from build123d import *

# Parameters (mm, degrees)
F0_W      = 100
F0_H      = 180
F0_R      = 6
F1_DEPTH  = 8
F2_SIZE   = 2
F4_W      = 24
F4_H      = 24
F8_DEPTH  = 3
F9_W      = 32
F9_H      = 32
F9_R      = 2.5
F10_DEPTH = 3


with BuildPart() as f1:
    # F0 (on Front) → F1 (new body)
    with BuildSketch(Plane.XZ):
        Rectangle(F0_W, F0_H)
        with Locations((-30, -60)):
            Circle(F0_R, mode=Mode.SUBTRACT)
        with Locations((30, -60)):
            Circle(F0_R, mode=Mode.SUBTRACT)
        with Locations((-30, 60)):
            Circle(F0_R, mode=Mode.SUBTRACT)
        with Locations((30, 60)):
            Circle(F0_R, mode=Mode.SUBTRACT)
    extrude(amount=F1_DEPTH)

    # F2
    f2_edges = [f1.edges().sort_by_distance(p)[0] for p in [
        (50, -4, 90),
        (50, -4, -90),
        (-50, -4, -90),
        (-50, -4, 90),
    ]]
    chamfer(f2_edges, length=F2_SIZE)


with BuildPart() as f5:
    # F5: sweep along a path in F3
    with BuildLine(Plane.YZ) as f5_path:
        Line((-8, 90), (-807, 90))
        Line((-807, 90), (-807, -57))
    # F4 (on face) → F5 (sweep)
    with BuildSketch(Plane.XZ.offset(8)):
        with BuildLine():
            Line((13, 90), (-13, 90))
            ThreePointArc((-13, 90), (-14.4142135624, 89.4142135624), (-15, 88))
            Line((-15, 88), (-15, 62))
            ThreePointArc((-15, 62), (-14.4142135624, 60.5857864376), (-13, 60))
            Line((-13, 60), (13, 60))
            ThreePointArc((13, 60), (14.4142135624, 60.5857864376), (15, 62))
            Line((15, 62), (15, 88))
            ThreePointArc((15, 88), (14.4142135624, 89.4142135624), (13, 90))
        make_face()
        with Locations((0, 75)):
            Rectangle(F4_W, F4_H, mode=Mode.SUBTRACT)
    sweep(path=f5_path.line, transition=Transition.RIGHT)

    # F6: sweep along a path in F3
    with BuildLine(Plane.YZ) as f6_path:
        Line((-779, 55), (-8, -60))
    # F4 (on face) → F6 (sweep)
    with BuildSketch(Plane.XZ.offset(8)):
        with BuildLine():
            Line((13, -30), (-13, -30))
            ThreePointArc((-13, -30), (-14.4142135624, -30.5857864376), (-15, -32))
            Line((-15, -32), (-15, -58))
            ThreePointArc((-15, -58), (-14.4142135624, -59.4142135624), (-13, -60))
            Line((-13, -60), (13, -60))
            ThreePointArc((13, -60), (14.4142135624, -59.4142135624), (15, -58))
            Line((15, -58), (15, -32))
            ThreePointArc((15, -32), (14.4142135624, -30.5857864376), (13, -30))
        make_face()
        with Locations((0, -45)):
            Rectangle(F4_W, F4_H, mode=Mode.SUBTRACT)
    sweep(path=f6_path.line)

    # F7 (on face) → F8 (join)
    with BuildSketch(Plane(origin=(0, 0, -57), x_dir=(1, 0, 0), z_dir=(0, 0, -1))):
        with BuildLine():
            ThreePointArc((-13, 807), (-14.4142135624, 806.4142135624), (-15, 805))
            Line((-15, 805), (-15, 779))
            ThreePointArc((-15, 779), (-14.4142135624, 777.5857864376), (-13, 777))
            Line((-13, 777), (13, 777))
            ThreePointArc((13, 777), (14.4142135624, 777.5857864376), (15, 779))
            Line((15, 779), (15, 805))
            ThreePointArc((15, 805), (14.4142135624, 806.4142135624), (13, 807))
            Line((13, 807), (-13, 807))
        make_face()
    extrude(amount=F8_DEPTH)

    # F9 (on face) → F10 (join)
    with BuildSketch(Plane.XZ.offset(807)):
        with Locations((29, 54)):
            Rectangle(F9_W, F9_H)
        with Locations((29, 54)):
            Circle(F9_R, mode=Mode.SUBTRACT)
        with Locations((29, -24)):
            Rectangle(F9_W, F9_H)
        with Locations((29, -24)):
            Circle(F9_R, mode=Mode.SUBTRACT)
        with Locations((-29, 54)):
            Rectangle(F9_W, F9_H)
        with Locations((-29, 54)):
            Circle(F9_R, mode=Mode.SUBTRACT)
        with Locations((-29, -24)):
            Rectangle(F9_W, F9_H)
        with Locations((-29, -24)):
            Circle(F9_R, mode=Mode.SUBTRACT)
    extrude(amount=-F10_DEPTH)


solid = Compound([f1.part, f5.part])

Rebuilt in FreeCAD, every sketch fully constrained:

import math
import FreeCAD as App
import Part
import Sketcher
from FreeCAD import Vector
Q = App.Units.Quantity


def edges_at(feature, points):
    """Names of the edges that pass closest to the given points."""
    edges = feature.Shape.Edges
    near = lambda p: min(range(len(edges)), key=lambda i: edges[i].distToShape(Part.Vertex(*p))[0])
    return sorted({f"Edge{near(p) + 1}" for p in points})


def add_polygon(sketch, points):
    """Adds a closed chain of lines whose ends are joined by coincident constraints."""
    first, n = sketch.GeometryCount, len(points)
    for a, b in zip(points, points[1:] + points[:1]):
        sketch.addGeometry(Part.LineSegment(App.Vector(*a, 0), App.Vector(*b, 0)), False)
    for i in range(n):
        sketch.addConstraint(Sketcher.Constraint("Coincident", first + i, 2, first + (i + 1) % n, 1))

doc = App.newDocument("Part")
body = doc.addObject("PartDesign::Body", "Body")

# Sketch on XZ plane
sketch1 = body.newObject("Sketcher::SketchObject", "Sketch")
sketch1.AttachmentSupport = (doc.getObject("XZ_Plane"), [""])
sketch1.MapMode = "FlatFace"
add_polygon(sketch1, [(-50, 90), (-50, -90), (50, -90), (50, 90)])  # lines 0-3
sketch1.addGeometry(Part.Circle(Vector(-30, -60, 0), Vector(0, 0, 1), 6), False)  # 4
sketch1.addGeometry(Part.Circle(Vector(30, -60, 0), Vector(0, 0, 1), 6), False)  # 5
sketch1.addGeometry(Part.Circle(Vector(-30, 60, 0), Vector(0, 0, 1), 6), False)  # 6
sketch1.addGeometry(Part.Circle(Vector(30, 60, 0), Vector(0, 0, 1), 6), False)  # 7
sketch1.addConstraint(Sketcher.Constraint("Vertical", 0))
sketch1.addConstraint(Sketcher.Constraint("Horizontal", 1))
sketch1.addConstraint(Sketcher.Constraint("Vertical", 2))
sketch1.addConstraint(Sketcher.Constraint("Horizontal", 3))
sketch1.addConstraint(Sketcher.Constraint("Equal", 4, 5))
sketch1.addConstraint(Sketcher.Constraint("Equal", 5, 6))
sketch1.addConstraint(Sketcher.Constraint("Equal", 6, 7))
sketch1.addConstraint(Sketcher.Constraint("Symmetric", 5, 3, 6, 3, -1, 1))
sketch1.addConstraint(Sketcher.Constraint("Symmetric", 4, 3, 7, 3, -1, 1))
sketch1.addConstraint(Sketcher.Constraint("Symmetric", 0, 2, 2, 2, -1, 1))
sketch1.addConstraint(Sketcher.Constraint("Symmetric", 4, 3, 5, 3, -2))
sketch1.addConstraint(Sketcher.Constraint("Diameter", 4, Q("12 mm")))
sketch1.addConstraint(Sketcher.Constraint("DistanceX", 1, 1, 1, 2, Q("100 mm")))
sketch1.addConstraint(Sketcher.Constraint("DistanceY", 0, 2, 0, 1, Q("180 mm")))
sketch1.addConstraint(Sketcher.Constraint("DistanceX", 4, 3, -1, 1, Q("30 mm")))
sketch1.addConstraint(Sketcher.Constraint("DistanceY", 4, 3, -1, 1, Q("60 mm")))
pad1 = body.newObject("PartDesign::Pad", "Pad")
pad1.Profile = sketch1
pad1.Length = 8
doc.recompute()

chamfer = body.newObject("PartDesign::Chamfer", "Chamfer")
chamfer.Base = (pad1, edges_at(pad1, [
    (50, -4, 90),
    (50, -4, -90),
    (-50, -4, -90),
    (-50, -4, 90),
]))
chamfer.Size = 2
body2 = doc.addObject("PartDesign::Body", "Body001")

# Sketch on XZ plane
sketch2 = body2.newObject("Sketcher::SketchObject", "Sketch001")
sketch2.AttachmentSupport = (doc.getObject("XZ_Plane001"), [""])
sketch2.MapMode = "FlatFace"
sketch2.AttachmentOffset = App.Placement(Vector(0, 0, 8), App.Rotation())
sketch2.addGeometry(Part.LineSegment(Vector(13, 90, 0), Vector(-13, 90, 0)), False)  # 0
sketch2.addGeometry(Part.ArcOfCircle(Part.Circle(Vector(-13, 88, 0), Vector(0, 0, 1), 2), math.radians(90), math.radians(180)), False)  # 1
sketch2.addGeometry(Part.LineSegment(Vector(-15, 88, 0), Vector(-15, 62, 0)), False)  # 2
sketch2.addGeometry(Part.ArcOfCircle(Part.Circle(Vector(-13, 62, 0), Vector(0, 0, 1), 2), math.radians(180), math.radians(270)), False)  # 3
sketch2.addGeometry(Part.LineSegment(Vector(-13, 60, 0), Vector(13, 60, 0)), False)  # 4
sketch2.addGeometry(Part.ArcOfCircle(Part.Circle(Vector(13, 62, 0), Vector(0, 0, 1), 2), math.radians(-90), math.radians(0)), False)  # 5
sketch2.addGeometry(Part.LineSegment(Vector(15, 62, 0), Vector(15, 88, 0)), False)  # 6
sketch2.addGeometry(Part.ArcOfCircle(Part.Circle(Vector(13, 88, 0), Vector(0, 0, 1), 2), math.radians(0), math.radians(90)), False)  # 7
add_polygon(sketch2, [(12, 63), (-12, 63), (-12, 87), (12, 87)])  # lines 8-11
sketch2.addConstraint(Sketcher.Constraint("Tangent", 0, 2, 1, 1))
sketch2.addConstraint(Sketcher.Constraint("Tangent", 1, 2, 2, 1))
sketch2.addConstraint(Sketcher.Constraint("Tangent", 2, 2, 3, 1))
sketch2.addConstraint(Sketcher.Constraint("Tangent", 3, 2, 4, 1))
sketch2.addConstraint(Sketcher.Constraint("Tangent", 4, 2, 5, 1))
sketch2.addConstraint(Sketcher.Constraint("Tangent", 5, 2, 6, 1))
sketch2.addConstraint(Sketcher.Constraint("Tangent", 6, 2, 7, 1))
sketch2.addConstraint(Sketcher.Constraint("Tangent", 7, 2, 0, 1))
sketch2.addConstraint(Sketcher.Constraint("Horizontal", 0))
sketch2.addConstraint(Sketcher.Constraint("Vertical", 2))
sketch2.addConstraint(Sketcher.Constraint("Horizontal", 4))
sketch2.addConstraint(Sketcher.Constraint("Vertical", 6))
sketch2.addConstraint(Sketcher.Constraint("Horizontal", 8))
sketch2.addConstraint(Sketcher.Constraint("Vertical", 9))
sketch2.addConstraint(Sketcher.Constraint("Horizontal", 10))
sketch2.addConstraint(Sketcher.Constraint("Vertical", 11))
sketch2.addConstraint(Sketcher.Constraint("Equal", 1, 3))
sketch2.addConstraint(Sketcher.Constraint("Equal", 3, 5))
sketch2.addConstraint(Sketcher.Constraint("Equal", 5, 7))
sketch2.addConstraint(Sketcher.Constraint("Equal", 4, 2))
sketch2.addConstraint(Sketcher.Constraint("Equal", 10, 9))
sketch2.addConstraint(Sketcher.Constraint("Radius", 1, Q("2 mm")))
sketch2.addConstraint(Sketcher.Constraint("DistanceX", 0, 2, 0, 1, Q("26 mm")))
sketch2.addConstraint(Sketcher.Constraint("DistanceX", 8, 2, 8, 1, Q("24 mm")))
sketch2.addConstraint(Sketcher.Constraint("DistanceX", 1, 3, -1, 1, Q("13 mm")))
sketch2.addConstraint(Sketcher.Constraint("DistanceY", -1, 1, 1, 3, Q("88 mm")))
sketch2.addConstraint(Sketcher.Constraint("DistanceX", 8, 2, -1, 1, Q("12 mm")))
sketch2.addConstraint(Sketcher.Constraint("DistanceY", -1, 1, 8, 2, Q("63 mm")))

# Sketch on YZ plane
sketch3 = body2.newObject("Sketcher::SketchObject", "Sketch002")
sketch3.AttachmentSupport = (doc.getObject("YZ_Plane001"), [""])
sketch3.MapMode = "FlatFace"
sketch3.addGeometry(Part.LineSegment(Vector(-8, 90, 0), Vector(-807, 90, 0)), False)
sketch3.addGeometry(Part.LineSegment(Vector(-807, 90, 0), Vector(-807, -57, 0)), False)
sketch3.addConstraint(Sketcher.Constraint("Coincident", 0, 2, 1, 1))
sketch3.addConstraint(Sketcher.Constraint("Horizontal", 0))
sketch3.addConstraint(Sketcher.Constraint("Vertical", 1))
sketch3.addConstraint(Sketcher.Constraint("DistanceX", 0, 2, 0, 1, Q("799 mm")))
sketch3.addConstraint(Sketcher.Constraint("DistanceY", 1, 2, 1, 1, Q("147 mm")))
sketch3.addConstraint(Sketcher.Constraint("DistanceX", 0, 1, -1, 1, Q("8 mm")))
sketch3.addConstraint(Sketcher.Constraint("DistanceY", -1, 1, 0, 1, Q("90 mm")))
doc.recompute()

additivepipe = body2.newObject("PartDesign::AdditivePipe", "AdditivePipe")
additivepipe.Profile = sketch2
additivepipe.Spine = (sketch3, ["Edge1", "Edge2"])
additivepipe.Transition = "Right corner"

# Sketch on XZ plane
sketch4 = body2.newObject("Sketcher::SketchObject", "Sketch003")
sketch4.AttachmentSupport = (doc.getObject("XZ_Plane001"), [""])
sketch4.MapMode = "FlatFace"
sketch4.AttachmentOffset = App.Placement(Vector(0, 0, 8), App.Rotation())
sketch4.addGeometry(Part.LineSegment(Vector(13, -30, 0), Vector(-13, -30, 0)), False)  # 0
sketch4.addGeometry(Part.ArcOfCircle(Part.Circle(Vector(-13, -32, 0), Vector(0, 0, 1), 2), math.radians(90), math.radians(180)), False)  # 1
sketch4.addGeometry(Part.LineSegment(Vector(-15, -32, 0), Vector(-15, -58, 0)), False)  # 2
sketch4.addGeometry(Part.ArcOfCircle(Part.Circle(Vector(-13, -58, 0), Vector(0, 0, 1), 2), math.radians(180), math.radians(270)), False)  # 3
sketch4.addGeometry(Part.LineSegment(Vector(-13, -60, 0), Vector(13, -60, 0)), False)  # 4
sketch4.addGeometry(Part.ArcOfCircle(Part.Circle(Vector(13, -58, 0), Vector(0, 0, 1), 2), math.radians(-90), math.radians(0)), False)  # 5
sketch4.addGeometry(Part.LineSegment(Vector(15, -58, 0), Vector(15, -32, 0)), False)  # 6
sketch4.addGeometry(Part.ArcOfCircle(Part.Circle(Vector(13, -32, 0), Vector(0, 0, 1), 2), math.radians(0), math.radians(90)), False)  # 7
add_polygon(sketch4, [(12, -57), (-12, -57), (-12, -33), (12, -33)])  # lines 8-11
sketch4.addConstraint(Sketcher.Constraint("Tangent", 0, 2, 1, 1))
sketch4.addConstraint(Sketcher.Constraint("Tangent", 1, 2, 2, 1))
sketch4.addConstraint(Sketcher.Constraint("Tangent", 2, 2, 3, 1))
sketch4.addConstraint(Sketcher.Constraint("Tangent", 3, 2, 4, 1))
sketch4.addConstraint(Sketcher.Constraint("Tangent", 4, 2, 5, 1))
sketch4.addConstraint(Sketcher.Constraint("Tangent", 5, 2, 6, 1))
sketch4.addConstraint(Sketcher.Constraint("Tangent", 6, 2, 7, 1))
sketch4.addConstraint(Sketcher.Constraint("Tangent", 7, 2, 0, 1))
sketch4.addConstraint(Sketcher.Constraint("Horizontal", 0))
sketch4.addConstraint(Sketcher.Constraint("Vertical", 2))
sketch4.addConstraint(Sketcher.Constraint("Horizontal", 4))
sketch4.addConstraint(Sketcher.Constraint("Vertical", 6))
sketch4.addConstraint(Sketcher.Constraint("Horizontal", 8))
sketch4.addConstraint(Sketcher.Constraint("Vertical", 9))
sketch4.addConstraint(Sketcher.Constraint("Horizontal", 10))
sketch4.addConstraint(Sketcher.Constraint("Vertical", 11))
sketch4.addConstraint(Sketcher.Constraint("Equal", 1, 3))
sketch4.addConstraint(Sketcher.Constraint("Equal", 3, 5))
sketch4.addConstraint(Sketcher.Constraint("Equal", 5, 7))
sketch4.addConstraint(Sketcher.Constraint("Equal", 4, 2))
sketch4.addConstraint(Sketcher.Constraint("Equal", 10, 9))
sketch4.addConstraint(Sketcher.Constraint("Radius", 1, Q("2 mm")))
sketch4.addConstraint(Sketcher.Constraint("DistanceX", 0, 2, 0, 1, Q("26 mm")))
sketch4.addConstraint(Sketcher.Constraint("DistanceX", 8, 2, 8, 1, Q("24 mm")))
sketch4.addConstraint(Sketcher.Constraint("DistanceX", 1, 3, -1, 1, Q("13 mm")))
sketch4.addConstraint(Sketcher.Constraint("DistanceY", 1, 3, -1, 1, Q("32 mm")))
sketch4.addConstraint(Sketcher.Constraint("DistanceX", 8, 2, -1, 1, Q("12 mm")))
sketch4.addConstraint(Sketcher.Constraint("DistanceY", 8, 2, -1, 1, Q("57 mm")))

# Sketch on an angled plane
sketch5 = body2.newObject("Sketcher::SketchObject", "Sketch004")
sketch5.Placement = App.Placement(Vector(0, -8.928754, -59.86147), App.Rotation(Vector(0, 0.98905834, -0.147524915), Vector(1, 0, 0), Vector(0, -0.147524915, -0.98905834), "ZXY"))
sketch5.addGeometry(Part.LineSegment(Vector(-779, 0, 0), Vector(1, 0, 0)), False)
sketch5.addConstraint(Sketcher.Constraint("Horizontal", 0))
sketch5.addConstraint(Sketcher.Constraint("PointOnObject", 0, 1, -1))
sketch5.addConstraint(Sketcher.Constraint("DistanceX", 0, 1, 0, 2, Q("779.529346 mm")))
sketch5.addConstraint(Sketcher.Constraint("DistanceX", -1, 1, 0, 2, Q("0.939028 mm")))
doc.recompute()

additivepipe2 = body2.newObject("PartDesign::AdditivePipe", "AdditivePipe001")
additivepipe2.Profile = sketch4
additivepipe2.Spine = (sketch5, ["Edge1"])

# Sketch on XY plane
sketch6 = body2.newObject("Sketcher::SketchObject", "Sketch005")
sketch6.AttachmentSupport = (doc.getObject("XY_Plane001"), [""])
sketch6.MapMode = "FlatFace"
sketch6.AttachmentOffset = App.Placement(Vector(0, 0, -57), App.Rotation())
sketch6.addGeometry(Part.ArcOfCircle(Part.Circle(Vector(-13, -805, 0), Vector(0, 0, 1), 2), math.radians(180), math.radians(270)), False)
sketch6.addGeometry(Part.LineSegment(Vector(-15, -805, 0), Vector(-15, -779, 0)), False)
sketch6.addGeometry(Part.ArcOfCircle(Part.Circle(Vector(-13, -779, 0), Vector(0, 0, 1), 2), math.radians(90), math.radians(180)), False)
sketch6.addGeometry(Part.LineSegment(Vector(-13, -777, 0), Vector(13, -777, 0)), False)
sketch6.addGeometry(Part.ArcOfCircle(Part.Circle(Vector(13, -779, 0), Vector(0, 0, 1), 2), math.radians(0), math.radians(90)), False)
sketch6.addGeometry(Part.LineSegment(Vector(15, -779, 0), Vector(15, -805, 0)), False)
sketch6.addGeometry(Part.ArcOfCircle(Part.Circle(Vector(13, -805, 0), Vector(0, 0, 1), 2), math.radians(-90), math.radians(0)), False)
sketch6.addGeometry(Part.LineSegment(Vector(13, -807, 0), Vector(-13, -807, 0)), False)
sketch6.addConstraint(Sketcher.Constraint("Tangent", 0, 1, 1, 1))
sketch6.addConstraint(Sketcher.Constraint("Tangent", 1, 2, 2, 2))
sketch6.addConstraint(Sketcher.Constraint("Tangent", 2, 1, 3, 1))
sketch6.addConstraint(Sketcher.Constraint("Tangent", 3, 2, 4, 2))
sketch6.addConstraint(Sketcher.Constraint("Tangent", 4, 1, 5, 1))
sketch6.addConstraint(Sketcher.Constraint("Tangent", 5, 2, 6, 2))
sketch6.addConstraint(Sketcher.Constraint("Tangent", 6, 1, 7, 1))
sketch6.addConstraint(Sketcher.Constraint("Tangent", 7, 2, 0, 2))
sketch6.addConstraint(Sketcher.Constraint("Vertical", 1))
sketch6.addConstraint(Sketcher.Constraint("Horizontal", 3))
sketch6.addConstraint(Sketcher.Constraint("Vertical", 5))
sketch6.addConstraint(Sketcher.Constraint("Horizontal", 7))
sketch6.addConstraint(Sketcher.Constraint("Equal", 0, 2))
sketch6.addConstraint(Sketcher.Constraint("Equal", 2, 4))
sketch6.addConstraint(Sketcher.Constraint("Equal", 4, 6))
sketch6.addConstraint(Sketcher.Constraint("Equal", 7, 1))
sketch6.addConstraint(Sketcher.Constraint("Radius", 0, Q("2 mm")))
sketch6.addConstraint(Sketcher.Constraint("DistanceX", 3, 1, 3, 2, Q("26 mm")))
sketch6.addConstraint(Sketcher.Constraint("DistanceX", 0, 3, -1, 1, Q("13 mm")))
sketch6.addConstraint(Sketcher.Constraint("DistanceY", 0, 3, -1, 1, Q("805 mm")))
pad2 = body2.newObject("PartDesign::Pad", "Pad001")
pad2.Profile = sketch6
pad2.Length = 3
pad2.Reversed = True

# Sketch on XZ plane
sketch7 = body2.newObject("Sketcher::SketchObject", "Sketch006")
sketch7.AttachmentSupport = (doc.getObject("XZ_Plane001"), [""])
sketch7.MapMode = "FlatFace"
sketch7.AttachmentOffset = App.Placement(Vector(0, 0, 807), App.Rotation())
add_polygon(sketch7, [(13, 70), (13, 38), (45, 38), (45, 70)])  # lines 0-3
sketch7.addGeometry(Part.Circle(Vector(29, 54, 0), Vector(0, 0, 1), 2.5), False)  # 4
add_polygon(sketch7, [(13, -8), (13, -40), (45, -40), (45, -8)])  # lines 5-8
sketch7.addGeometry(Part.Circle(Vector(29, -24, 0), Vector(0, 0, 1), 2.5), False)  # 9
add_polygon(sketch7, [(-45, 70), (-45, 38), (-13, 38), (-13, 70)])  # lines 10-13
sketch7.addGeometry(Part.Circle(Vector(-29, 54, 0), Vector(0, 0, 1), 2.5), False)  # 14
add_polygon(sketch7, [(-45, -8), (-45, -40), (-13, -40), (-13, -8)])  # lines 15-18
sketch7.addGeometry(Part.Circle(Vector(-29, -24, 0), Vector(0, 0, 1), 2.5), False)  # 19
sketch7.addConstraint(Sketcher.Constraint("Vertical", 0))
sketch7.addConstraint(Sketcher.Constraint("Horizontal", 1))
sketch7.addConstraint(Sketcher.Constraint("Vertical", 2))
sketch7.addConstraint(Sketcher.Constraint("Horizontal", 3))
sketch7.addConstraint(Sketcher.Constraint("Vertical", 5))
sketch7.addConstraint(Sketcher.Constraint("Horizontal", 6))
sketch7.addConstraint(Sketcher.Constraint("Vertical", 7))
sketch7.addConstraint(Sketcher.Constraint("Horizontal", 8))
sketch7.addConstraint(Sketcher.Constraint("Vertical", 10))
sketch7.addConstraint(Sketcher.Constraint("Horizontal", 11))
sketch7.addConstraint(Sketcher.Constraint("Vertical", 12))
sketch7.addConstraint(Sketcher.Constraint("Horizontal", 13))
sketch7.addConstraint(Sketcher.Constraint("Vertical", 15))
sketch7.addConstraint(Sketcher.Constraint("Horizontal", 16))
sketch7.addConstraint(Sketcher.Constraint("Vertical", 17))
sketch7.addConstraint(Sketcher.Constraint("Horizontal", 18))
sketch7.addConstraint(Sketcher.Constraint("Equal", 4, 9))
sketch7.addConstraint(Sketcher.Constraint("Equal", 9, 14))
sketch7.addConstraint(Sketcher.Constraint("Equal", 14, 19))
sketch7.addConstraint(Sketcher.Constraint("Symmetric", 4, 3, 14, 3, -2))
sketch7.addConstraint(Sketcher.Constraint("Symmetric", 9, 3, 19, 3, -2))
sketch7.addConstraint(Sketcher.Constraint("Symmetric", 1, 2, 10, 2, -2))
sketch7.addConstraint(Sketcher.Constraint("Symmetric", 3, 2, 12, 2, -2))
sketch7.addConstraint(Sketcher.Constraint("Symmetric", 6, 2, 15, 2, -2))
sketch7.addConstraint(Sketcher.Constraint("Symmetric", 8, 2, 17, 2, -2))
sketch7.addConstraint(Sketcher.Constraint("Vertical", 4, 3, 9, 3))
sketch7.addConstraint(Sketcher.Constraint("Vertical", 3, 2, 5, 2))
sketch7.addConstraint(Sketcher.Constraint("Vertical", 2, 2, 6, 2))
sketch7.addConstraint(Sketcher.Constraint("Equal", 18, 0))
sketch7.addConstraint(Sketcher.Constraint("Equal", 2, 5))
sketch7.addConstraint(Sketcher.Constraint("Diameter", 4, Q("5 mm")))
sketch7.addConstraint(Sketcher.Constraint("DistanceX", 1, 1, 1, 2, Q("32 mm")))
sketch7.addConstraint(Sketcher.Constraint("DistanceX", -1, 1, 4, 3, Q("29 mm")))
sketch7.addConstraint(Sketcher.Constraint("DistanceY", -1, 1, 4, 3, Q("54 mm")))
sketch7.addConstraint(Sketcher.Constraint("DistanceY", 9, 3, -1, 1, Q("24 mm")))
sketch7.addConstraint(Sketcher.Constraint("DistanceX", -1, 1, 0, 2, Q("13 mm")))
sketch7.addConstraint(Sketcher.Constraint("DistanceY", -1, 1, 0, 2, Q("38 mm")))
sketch7.addConstraint(Sketcher.Constraint("DistanceY", 5, 2, -1, 1, Q("40 mm")))
pad3 = body2.newObject("PartDesign::Pad", "Pad002")
pad3.Profile = sketch7
pad3.Length = 3
pad3.Reversed = True

doc.recompute()
